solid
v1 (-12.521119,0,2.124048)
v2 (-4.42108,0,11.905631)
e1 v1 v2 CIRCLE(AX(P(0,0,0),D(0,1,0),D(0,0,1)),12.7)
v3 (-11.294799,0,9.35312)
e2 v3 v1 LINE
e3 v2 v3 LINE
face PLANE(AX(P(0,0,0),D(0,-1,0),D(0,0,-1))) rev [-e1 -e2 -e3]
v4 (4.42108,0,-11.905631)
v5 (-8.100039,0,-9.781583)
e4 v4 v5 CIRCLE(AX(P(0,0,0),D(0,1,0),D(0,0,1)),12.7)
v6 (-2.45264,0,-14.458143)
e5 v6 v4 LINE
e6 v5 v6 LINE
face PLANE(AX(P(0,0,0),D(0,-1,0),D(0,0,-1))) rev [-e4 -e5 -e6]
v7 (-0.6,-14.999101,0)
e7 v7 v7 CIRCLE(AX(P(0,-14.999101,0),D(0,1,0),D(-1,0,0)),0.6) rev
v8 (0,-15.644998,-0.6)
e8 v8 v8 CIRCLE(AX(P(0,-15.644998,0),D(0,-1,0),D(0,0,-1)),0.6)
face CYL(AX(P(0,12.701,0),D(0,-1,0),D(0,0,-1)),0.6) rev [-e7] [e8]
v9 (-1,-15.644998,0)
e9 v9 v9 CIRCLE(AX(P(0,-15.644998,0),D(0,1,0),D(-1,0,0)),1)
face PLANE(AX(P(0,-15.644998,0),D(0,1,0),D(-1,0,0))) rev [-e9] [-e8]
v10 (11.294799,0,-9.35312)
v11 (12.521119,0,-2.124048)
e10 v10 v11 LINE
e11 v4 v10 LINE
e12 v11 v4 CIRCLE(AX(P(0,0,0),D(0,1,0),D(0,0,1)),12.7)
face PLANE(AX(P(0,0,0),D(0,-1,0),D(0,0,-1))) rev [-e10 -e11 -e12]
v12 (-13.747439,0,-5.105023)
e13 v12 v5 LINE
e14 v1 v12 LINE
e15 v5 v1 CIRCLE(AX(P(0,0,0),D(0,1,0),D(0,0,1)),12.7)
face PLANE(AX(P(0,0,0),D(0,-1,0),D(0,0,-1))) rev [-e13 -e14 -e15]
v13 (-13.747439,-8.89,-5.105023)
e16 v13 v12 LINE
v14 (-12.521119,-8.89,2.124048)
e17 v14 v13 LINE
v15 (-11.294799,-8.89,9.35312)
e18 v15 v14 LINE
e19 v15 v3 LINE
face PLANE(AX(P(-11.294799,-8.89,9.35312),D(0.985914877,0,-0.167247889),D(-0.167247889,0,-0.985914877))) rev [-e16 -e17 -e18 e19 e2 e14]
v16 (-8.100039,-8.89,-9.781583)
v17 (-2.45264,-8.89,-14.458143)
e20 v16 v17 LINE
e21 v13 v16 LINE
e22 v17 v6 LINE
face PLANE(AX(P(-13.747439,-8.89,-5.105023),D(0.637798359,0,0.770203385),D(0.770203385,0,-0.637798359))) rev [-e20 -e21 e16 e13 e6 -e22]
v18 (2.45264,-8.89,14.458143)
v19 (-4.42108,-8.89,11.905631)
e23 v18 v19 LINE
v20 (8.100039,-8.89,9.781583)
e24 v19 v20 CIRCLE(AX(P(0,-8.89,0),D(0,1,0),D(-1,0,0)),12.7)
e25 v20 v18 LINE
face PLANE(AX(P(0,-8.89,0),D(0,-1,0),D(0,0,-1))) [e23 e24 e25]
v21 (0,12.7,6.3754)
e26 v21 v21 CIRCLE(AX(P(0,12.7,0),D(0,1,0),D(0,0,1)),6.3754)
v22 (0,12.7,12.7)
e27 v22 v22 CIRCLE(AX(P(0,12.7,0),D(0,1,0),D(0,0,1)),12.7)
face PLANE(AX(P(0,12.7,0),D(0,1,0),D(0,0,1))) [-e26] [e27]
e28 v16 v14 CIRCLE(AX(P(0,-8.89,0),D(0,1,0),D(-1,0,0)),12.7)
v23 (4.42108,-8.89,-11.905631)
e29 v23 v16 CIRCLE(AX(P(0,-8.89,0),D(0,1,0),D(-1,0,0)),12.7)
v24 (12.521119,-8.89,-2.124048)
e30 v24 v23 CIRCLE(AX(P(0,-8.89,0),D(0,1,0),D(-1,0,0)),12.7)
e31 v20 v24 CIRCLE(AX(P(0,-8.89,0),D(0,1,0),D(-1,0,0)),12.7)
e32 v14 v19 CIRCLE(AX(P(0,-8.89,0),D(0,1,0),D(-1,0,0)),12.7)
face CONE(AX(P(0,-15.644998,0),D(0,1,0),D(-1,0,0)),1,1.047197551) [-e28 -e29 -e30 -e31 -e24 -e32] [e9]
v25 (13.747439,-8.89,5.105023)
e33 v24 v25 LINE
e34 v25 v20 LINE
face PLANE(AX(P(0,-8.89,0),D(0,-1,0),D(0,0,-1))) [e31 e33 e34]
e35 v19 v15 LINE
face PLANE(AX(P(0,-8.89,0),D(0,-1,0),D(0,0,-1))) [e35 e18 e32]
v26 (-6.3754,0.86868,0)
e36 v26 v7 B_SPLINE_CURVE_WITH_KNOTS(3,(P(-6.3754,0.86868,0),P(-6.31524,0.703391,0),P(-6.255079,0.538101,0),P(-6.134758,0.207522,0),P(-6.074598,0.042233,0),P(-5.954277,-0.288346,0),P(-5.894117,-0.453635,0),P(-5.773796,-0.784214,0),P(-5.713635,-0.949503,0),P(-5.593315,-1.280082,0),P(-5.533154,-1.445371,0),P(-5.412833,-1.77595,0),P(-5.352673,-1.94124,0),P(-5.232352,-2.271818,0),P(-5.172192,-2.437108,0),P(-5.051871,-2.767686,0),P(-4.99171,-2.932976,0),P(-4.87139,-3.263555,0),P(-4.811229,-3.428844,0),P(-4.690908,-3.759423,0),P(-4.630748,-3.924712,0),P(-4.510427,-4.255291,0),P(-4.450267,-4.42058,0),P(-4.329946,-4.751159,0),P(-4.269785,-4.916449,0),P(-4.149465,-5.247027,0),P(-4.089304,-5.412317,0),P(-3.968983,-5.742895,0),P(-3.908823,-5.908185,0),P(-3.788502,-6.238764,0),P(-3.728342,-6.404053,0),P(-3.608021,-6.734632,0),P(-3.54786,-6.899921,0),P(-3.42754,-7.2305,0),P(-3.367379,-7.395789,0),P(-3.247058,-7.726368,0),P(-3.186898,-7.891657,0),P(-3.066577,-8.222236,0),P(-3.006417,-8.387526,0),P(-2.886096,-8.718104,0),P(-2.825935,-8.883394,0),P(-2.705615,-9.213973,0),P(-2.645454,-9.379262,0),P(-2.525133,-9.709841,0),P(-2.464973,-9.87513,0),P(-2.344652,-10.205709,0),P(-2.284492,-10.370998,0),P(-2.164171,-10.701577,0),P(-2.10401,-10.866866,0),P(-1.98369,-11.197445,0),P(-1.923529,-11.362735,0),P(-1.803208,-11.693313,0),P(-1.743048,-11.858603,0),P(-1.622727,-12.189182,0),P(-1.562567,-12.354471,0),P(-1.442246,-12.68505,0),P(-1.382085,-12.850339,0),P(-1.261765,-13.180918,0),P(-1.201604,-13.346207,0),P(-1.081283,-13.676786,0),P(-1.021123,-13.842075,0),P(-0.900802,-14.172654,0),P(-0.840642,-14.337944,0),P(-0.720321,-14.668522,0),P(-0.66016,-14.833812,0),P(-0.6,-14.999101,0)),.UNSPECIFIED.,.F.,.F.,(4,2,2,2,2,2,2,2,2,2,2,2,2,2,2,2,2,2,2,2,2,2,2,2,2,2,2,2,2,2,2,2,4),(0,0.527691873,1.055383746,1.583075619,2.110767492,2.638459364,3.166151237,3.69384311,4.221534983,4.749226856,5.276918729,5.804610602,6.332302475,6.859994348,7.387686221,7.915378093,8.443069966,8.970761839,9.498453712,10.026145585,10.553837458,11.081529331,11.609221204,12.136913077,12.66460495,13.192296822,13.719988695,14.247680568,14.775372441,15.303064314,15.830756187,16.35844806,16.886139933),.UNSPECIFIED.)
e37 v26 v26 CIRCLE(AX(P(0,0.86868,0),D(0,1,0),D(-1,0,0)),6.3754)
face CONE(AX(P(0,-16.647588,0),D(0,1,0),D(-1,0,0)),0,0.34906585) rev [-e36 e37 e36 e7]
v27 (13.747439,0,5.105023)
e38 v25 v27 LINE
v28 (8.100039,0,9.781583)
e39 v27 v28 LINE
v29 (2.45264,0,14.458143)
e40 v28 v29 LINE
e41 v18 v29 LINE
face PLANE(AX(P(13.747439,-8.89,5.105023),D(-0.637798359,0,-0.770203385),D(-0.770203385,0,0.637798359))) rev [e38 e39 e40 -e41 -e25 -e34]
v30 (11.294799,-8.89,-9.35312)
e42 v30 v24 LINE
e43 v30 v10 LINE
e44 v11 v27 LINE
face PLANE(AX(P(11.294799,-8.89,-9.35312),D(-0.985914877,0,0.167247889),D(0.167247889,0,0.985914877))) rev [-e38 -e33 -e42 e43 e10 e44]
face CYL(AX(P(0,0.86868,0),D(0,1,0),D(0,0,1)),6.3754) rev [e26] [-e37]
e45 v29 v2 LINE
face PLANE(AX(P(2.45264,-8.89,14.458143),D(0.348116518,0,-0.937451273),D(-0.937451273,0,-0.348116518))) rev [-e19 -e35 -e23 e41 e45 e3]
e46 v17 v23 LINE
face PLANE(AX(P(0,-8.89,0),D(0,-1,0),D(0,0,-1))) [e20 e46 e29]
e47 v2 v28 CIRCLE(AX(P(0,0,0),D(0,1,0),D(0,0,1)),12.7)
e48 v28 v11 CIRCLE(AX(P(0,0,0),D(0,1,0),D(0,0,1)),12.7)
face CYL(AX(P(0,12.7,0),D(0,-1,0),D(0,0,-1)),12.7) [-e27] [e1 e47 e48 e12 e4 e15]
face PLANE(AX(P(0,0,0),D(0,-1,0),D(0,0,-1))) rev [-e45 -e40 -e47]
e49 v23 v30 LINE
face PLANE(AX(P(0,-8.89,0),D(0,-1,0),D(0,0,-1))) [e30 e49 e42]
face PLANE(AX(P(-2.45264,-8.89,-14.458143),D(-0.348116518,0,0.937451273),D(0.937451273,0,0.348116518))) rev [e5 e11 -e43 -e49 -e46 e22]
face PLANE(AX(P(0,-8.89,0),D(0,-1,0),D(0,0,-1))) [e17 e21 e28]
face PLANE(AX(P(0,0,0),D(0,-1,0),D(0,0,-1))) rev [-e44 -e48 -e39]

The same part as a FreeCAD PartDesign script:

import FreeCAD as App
import Part
import Sketcher
Q = App.Units.Quantity

doc = App.newDocument("Part")
body = doc.addObject("PartDesign::Body", "Body")

sketch1 = doc.addObject("Sketcher::SketchObject", "Sketch")
body.addObject(sketch1)
sketch1.AttachmentSupport = (doc.XZ_Plane, [""])
sketch1.MapMode = "FlatFace"
sketch1.addGeometry(Part.Circle(App.Vector(0, 0, 0), App.Vector(0, 0, 1), 13), False)
sketch1.addConstraint(Sketcher.Constraint("Coincident", 0, 3, -1, 1))
sketch1.addConstraint(Sketcher.Constraint("Diameter", 0, Q("1 in")))
pad1 = doc.addObject("PartDesign::Pad", "Pad")
body.addObject(pad1)
pad1.Profile = sketch1
pad1.Length = Q("0.5 in")
pad1.Reversed = True

sketch2 = doc.addObject("Sketcher::SketchObject", "Sketch001")
body.addObject(sketch2)
sketch2.AttachmentSupport = (doc.XZ_Plane, [""])
sketch2.MapMode = "FlatFace"
sketch2.addGeometry(Part.LineSegment(App.Vector(11, -9, 0), App.Vector(14, 5, 0)), False)
sketch2.addGeometry(Part.LineSegment(App.Vector(14, 5, 0), App.Vector(2, 14, 0)), False)
sketch2.addGeometry(Part.LineSegment(App.Vector(2, 14, 0), App.Vector(-11, 9, 0)), False)
sketch2.addGeometry(Part.LineSegment(App.Vector(-11, 9, 0), App.Vector(-14, -5, 0)), False)
sketch2.addGeometry(Part.LineSegment(App.Vector(-14, -5, 0), App.Vector(-2, -14, 0)), False)
sketch2.addGeometry(Part.LineSegment(App.Vector(-2, -14, 0), App.Vector(11, -9, 0)), False)
sketch2.addConstraint(Sketcher.Constraint("Coincident", 0, 2, 1, 1))
sketch2.addConstraint(Sketcher.Constraint("Coincident", 1, 2, 2, 1))
sketch2.addConstraint(Sketcher.Constraint("Coincident", 2, 2, 3, 1))
sketch2.addConstraint(Sketcher.Constraint("Coincident", 3, 2, 4, 1))
sketch2.addConstraint(Sketcher.Constraint("Coincident", 4, 2, 5, 1))
sketch2.addConstraint(Sketcher.Constraint("Coincident", 5, 2, 0, 1))
sketch2.addConstraint(Sketcher.Constraint("Symmetric", 0, 2, 3, 2, -1, 1))
sketch2.addConstraint(Sketcher.Constraint("Symmetric", 1, 2, 4, 2, -1, 1))
sketch2.addConstraint(Sketcher.Constraint("Symmetric", 2, 2, 5, 2, -1, 1))
sketch2.addConstraint(Sketcher.Constraint("Equal", 0, 1))
sketch2.addConstraint(Sketcher.Constraint("Equal", 1, 2))
sketch2.addConstraint(Sketcher.Constraint("DistanceX", 2, 2, -1, 1, 11.294799))
sketch2.addConstraint(Sketcher.Constraint("DistanceX", 1, 2, 0, 2, 11.294799))
sketch2.addConstraint(Sketcher.Constraint("DistanceX", -1, 1, 0, 2, 13.747439))
sketch2.addConstraint(Sketcher.Constraint("DistanceY", -1, 1, 2, 2, 9.35312))
pad2 = doc.addObject("PartDesign::Pad", "Pad001")
body.addObject(pad2)
pad2.Profile = sketch2
pad2.Length = Q("0.35 in")

sketch3 = doc.addObject("Sketcher::SketchObject", "Sketch002")
body.addObject(sketch3)
sketch3.AttachmentSupport = (doc.XY_Plane, [""])
sketch3.MapMode = "FlatFace"
sketch3.addGeometry(Part.LineSegment(App.Vector(-12.7, -8.9, 0), App.Vector(-1, -15.6, 0)), False)
sketch3.addGeometry(Part.LineSegment(App.Vector(-1, -15.6, 0), App.Vector(0, -15.6, 0)), False)
sketch3.addGeometry(Part.LineSegment(App.Vector(0, -15.6, 0), App.Vector(0, -8.9, 0)), False)
sketch3.addGeometry(Part.LineSegment(App.Vector(0, -8.9, 0), App.Vector(-12.7, -8.9, 0)), False)
sketch3.addConstraint(Sketcher.Constraint("Coincident", 0, 2, 1, 1))
sketch3.addConstraint(Sketcher.Constraint("Coincident", 1, 2, 2, 1))
sketch3.addConstraint(Sketcher.Constraint("Coincident", 2, 2, 3, 1))
sketch3.addConstraint(Sketcher.Constraint("Coincident", 3, 2, 0, 1))
sketch3.addConstraint(Sketcher.Constraint("Horizontal", 1))
sketch3.addConstraint(Sketcher.Constraint("Vertical", 2))
sketch3.addConstraint(Sketcher.Constraint("Horizontal", 3))
sketch3.addConstraint(Sketcher.Constraint("PointOnObject", 1, 2, -2))
sketch3.addConstraint(Sketcher.Constraint("DistanceX", 3, 2, 3, 1, Q("0.5 in")))
sketch3.addConstraint(Sketcher.Constraint("Angle", 0, Q("-30 deg")))
sketch3.addConstraint(Sketcher.Constraint("DistanceY", 2, 2, -1, 1, Q("0.35 in")))
sketch3.addConstraint(Sketcher.Constraint("DistanceX", 1, 1, 1, 2, 1.0))
revolution = doc.addObject("PartDesign::Revolution", "Revolution")
body.addObject(revolution)
revolution.Profile = sketch3
revolution.ReferenceAxis = (sketch3, ["V_Axis"])
revolution.Angle = 360

sketch4 = doc.addObject("Sketcher::SketchObject", "Sketch003")
body.addObject(sketch4)
sketch4.AttachmentSupport = (doc.XZ_Plane, [""])
sketch4.MapMode = "FlatFace"
sketch4.AttachmentOffset = App.Placement(App.Vector(0, 0, 15.644998), App.Rotation())
sketch4.addGeometry(Part.Circle(App.Vector(0, 0, 0), App.Vector(0, 0, 1), 0.6), False)
sketch4.addConstraint(Sketcher.Constraint("Coincident", 0, 3, -1, 1))
sketch4.addConstraint(Sketcher.Constraint("Diameter", 0, 1.2))
pocket1 = doc.addObject("PartDesign::Pocket", "Pocket")
body.addObject(pocket1)
pocket1.Profile = sketch4
pocket1.Type = "UpToFirst"

sketch5 = doc.addObject("Sketcher::SketchObject", "Sketch004")
body.addObject(sketch5)
sketch5.AttachmentSupport = (doc.XZ_Plane, [""])
sketch5.MapMode = "FlatFace"
sketch5.AttachmentOffset = App.Placement(App.Vector(0, 0, -0.5 * 25.4), App.Rotation())
sketch5.addGeometry(Part.Circle(App.Vector(0, 0, 0), App.Vector(0, 0, 1), 6), False)
sketch5.addConstraint(Sketcher.Constraint("Coincident", 0, 3, -1, 1))
sketch5.addConstraint(Sketcher.Constraint("Diameter", 0, Q("0.502 in")))
pocket2 = doc.addObject("PartDesign::Pocket", "Pocket001")
body.addObject(pocket2)
pocket2.Profile = sketch5
pocket2.Length = Q("0.4658 in")
pocket2.Reversed = True

sketch6 = doc.addObject("Sketcher::SketchObject", "Sketch005")
body.addObject(sketch6)
sketch6.AttachmentSupport = (doc.XY_Plane, [""])
sketch6.MapMode = "FlatFace"
sketch6.addGeometry(Part.LineSegment(App.Vector(6, 1, 0), App.Vector(0, 1, 0)), False)
sketch6.addGeometry(Part.LineSegment(App.Vector(0, 1, 0), App.Vector(0, -17, 0)), False)
sketch6.addGeometry(Part.LineSegment(App.Vector(0, -17, 0), App.Vector(6, 1, 0)), False)
sketch6.addConstraint(Sketcher.Constraint("Coincident", 0, 2, 1, 1))
sketch6.addConstraint(Sketcher.Constraint("Coincident", 1, 2, 2, 1))
sketch6.addConstraint(Sketcher.Constraint("Coincident", 2, 2, 0, 1))
sketch6.addConstraint(Sketcher.Constraint("Horizontal", 0))
sketch6.addConstraint(Sketcher.Constraint("Vertical", 1))
sketch6.addConstraint(Sketcher.Constraint("PointOnObject", 0, 2, -2))
sketch6.addConstraint(Sketcher.Constraint("Angle", 2, Q("70 deg")))
sketch6.addConstraint(Sketcher.Constraint("DistanceX", 0, 2, 0, 1, Q("0.251 in")))
sketch6.addConstraint(Sketcher.Constraint("DistanceY", -1, 1, 0, 2, Q("0.0342 in")))
groove = doc.addObject("PartDesign::Groove", "Groove")
body.addObject(groove)
groove.Profile = sketch6
groove.ReferenceAxis = (sketch6, ["V_Axis"])
groove.Angle = 360

doc.recompute()
